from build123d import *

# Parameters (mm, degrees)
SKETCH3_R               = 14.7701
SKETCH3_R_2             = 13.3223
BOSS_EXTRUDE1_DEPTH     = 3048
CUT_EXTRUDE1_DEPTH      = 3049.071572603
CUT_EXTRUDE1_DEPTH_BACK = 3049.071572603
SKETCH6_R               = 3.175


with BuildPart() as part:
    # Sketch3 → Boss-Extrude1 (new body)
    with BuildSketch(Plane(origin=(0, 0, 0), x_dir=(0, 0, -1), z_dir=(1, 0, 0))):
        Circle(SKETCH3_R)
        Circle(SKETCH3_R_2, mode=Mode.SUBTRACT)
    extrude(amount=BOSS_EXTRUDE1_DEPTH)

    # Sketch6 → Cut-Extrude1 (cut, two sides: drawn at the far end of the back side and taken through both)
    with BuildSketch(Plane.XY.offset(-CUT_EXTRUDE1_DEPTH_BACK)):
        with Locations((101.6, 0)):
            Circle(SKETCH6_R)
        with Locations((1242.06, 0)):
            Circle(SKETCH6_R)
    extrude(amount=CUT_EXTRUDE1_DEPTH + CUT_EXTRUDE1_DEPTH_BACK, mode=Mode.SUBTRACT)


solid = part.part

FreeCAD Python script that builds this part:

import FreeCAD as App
import Part
import Sketcher
Q = App.Units.Quantity

doc = App.newDocument("Part")
body = doc.addObject("PartDesign::Body", "Body")

# Sketch on YZ plane
sketch1 = body.newObject("Sketcher::SketchObject", "Sketch")
sketch1.AttachmentSupport = (doc.getObject("YZ_Plane"), [""])
sketch1.MapMode = "FlatFace"
sketch1.addGeometry(Part.Circle(App.Vector(0, 0, 0), App.Vector(0, 0, 1), 15), False)
sketch1.addGeometry(Part.Circle(App.Vector(0, 0, 0), App.Vector(0, 0, 1), 13), False)
sketch1.addConstraint(Sketcher.Constraint("Coincident", 0, 3, -1, 1))
sketch1.addConstraint(Sketcher.Constraint("Coincident", 1, 3, -1, 1))
sketch1.addConstraint(Sketcher.Constraint("Diameter", 0, Q("1.163 in")))
sketch1.addConstraint(Sketcher.Constraint("Diameter", 1, Q("1.049 in")))
pad1 = body.newObject("PartDesign::Pad", "Pad")
pad1.Profile = sketch1
pad1.Length = Q("120 in")

# Sketch on XY plane
sketch2 = body.newObject("Sketcher::SketchObject", "Sketch001")
sketch2.AttachmentSupport = (doc.getObject("XY_Plane"), [""])
sketch2.MapMode = "FlatFace"
sketch2.addGeometry(Part.Circle(App.Vector(101.6, 0, 0), App.Vector(0, 0, 1), 3.2), False)
sketch2.addGeometry(Part.Circle(App.Vector(1242.1, 0, 0), App.Vector(0, 0, 1), 3.2), False)
sketch2.addConstraint(Sketcher.Constraint("Equal", 0, 1))
sketch2.addConstraint(Sketcher.Constraint("PointOnObject", 0, 3, -1))
sketch2.addConstraint(Sketcher.Constraint("PointOnObject", 1, 3, -1))
sketch2.addConstraint(Sketcher.Constraint("Diameter", 0, Q("0.25 in")))
sketch2.addConstraint(Sketcher.Constraint("DistanceX", -1, 1, 0, 3, Q("4 in")))
sketch2.addConstraint(Sketcher.Constraint("DistanceX", -1, 1, 1, 3, Q("48.9 in")))
pocket1 = body.newObject("PartDesign::Pocket", "Pocket")
pocket1.Profile = sketch2
pocket1.Type = "ThroughAll"
pocket1.Midplane = True

doc.recompute()
